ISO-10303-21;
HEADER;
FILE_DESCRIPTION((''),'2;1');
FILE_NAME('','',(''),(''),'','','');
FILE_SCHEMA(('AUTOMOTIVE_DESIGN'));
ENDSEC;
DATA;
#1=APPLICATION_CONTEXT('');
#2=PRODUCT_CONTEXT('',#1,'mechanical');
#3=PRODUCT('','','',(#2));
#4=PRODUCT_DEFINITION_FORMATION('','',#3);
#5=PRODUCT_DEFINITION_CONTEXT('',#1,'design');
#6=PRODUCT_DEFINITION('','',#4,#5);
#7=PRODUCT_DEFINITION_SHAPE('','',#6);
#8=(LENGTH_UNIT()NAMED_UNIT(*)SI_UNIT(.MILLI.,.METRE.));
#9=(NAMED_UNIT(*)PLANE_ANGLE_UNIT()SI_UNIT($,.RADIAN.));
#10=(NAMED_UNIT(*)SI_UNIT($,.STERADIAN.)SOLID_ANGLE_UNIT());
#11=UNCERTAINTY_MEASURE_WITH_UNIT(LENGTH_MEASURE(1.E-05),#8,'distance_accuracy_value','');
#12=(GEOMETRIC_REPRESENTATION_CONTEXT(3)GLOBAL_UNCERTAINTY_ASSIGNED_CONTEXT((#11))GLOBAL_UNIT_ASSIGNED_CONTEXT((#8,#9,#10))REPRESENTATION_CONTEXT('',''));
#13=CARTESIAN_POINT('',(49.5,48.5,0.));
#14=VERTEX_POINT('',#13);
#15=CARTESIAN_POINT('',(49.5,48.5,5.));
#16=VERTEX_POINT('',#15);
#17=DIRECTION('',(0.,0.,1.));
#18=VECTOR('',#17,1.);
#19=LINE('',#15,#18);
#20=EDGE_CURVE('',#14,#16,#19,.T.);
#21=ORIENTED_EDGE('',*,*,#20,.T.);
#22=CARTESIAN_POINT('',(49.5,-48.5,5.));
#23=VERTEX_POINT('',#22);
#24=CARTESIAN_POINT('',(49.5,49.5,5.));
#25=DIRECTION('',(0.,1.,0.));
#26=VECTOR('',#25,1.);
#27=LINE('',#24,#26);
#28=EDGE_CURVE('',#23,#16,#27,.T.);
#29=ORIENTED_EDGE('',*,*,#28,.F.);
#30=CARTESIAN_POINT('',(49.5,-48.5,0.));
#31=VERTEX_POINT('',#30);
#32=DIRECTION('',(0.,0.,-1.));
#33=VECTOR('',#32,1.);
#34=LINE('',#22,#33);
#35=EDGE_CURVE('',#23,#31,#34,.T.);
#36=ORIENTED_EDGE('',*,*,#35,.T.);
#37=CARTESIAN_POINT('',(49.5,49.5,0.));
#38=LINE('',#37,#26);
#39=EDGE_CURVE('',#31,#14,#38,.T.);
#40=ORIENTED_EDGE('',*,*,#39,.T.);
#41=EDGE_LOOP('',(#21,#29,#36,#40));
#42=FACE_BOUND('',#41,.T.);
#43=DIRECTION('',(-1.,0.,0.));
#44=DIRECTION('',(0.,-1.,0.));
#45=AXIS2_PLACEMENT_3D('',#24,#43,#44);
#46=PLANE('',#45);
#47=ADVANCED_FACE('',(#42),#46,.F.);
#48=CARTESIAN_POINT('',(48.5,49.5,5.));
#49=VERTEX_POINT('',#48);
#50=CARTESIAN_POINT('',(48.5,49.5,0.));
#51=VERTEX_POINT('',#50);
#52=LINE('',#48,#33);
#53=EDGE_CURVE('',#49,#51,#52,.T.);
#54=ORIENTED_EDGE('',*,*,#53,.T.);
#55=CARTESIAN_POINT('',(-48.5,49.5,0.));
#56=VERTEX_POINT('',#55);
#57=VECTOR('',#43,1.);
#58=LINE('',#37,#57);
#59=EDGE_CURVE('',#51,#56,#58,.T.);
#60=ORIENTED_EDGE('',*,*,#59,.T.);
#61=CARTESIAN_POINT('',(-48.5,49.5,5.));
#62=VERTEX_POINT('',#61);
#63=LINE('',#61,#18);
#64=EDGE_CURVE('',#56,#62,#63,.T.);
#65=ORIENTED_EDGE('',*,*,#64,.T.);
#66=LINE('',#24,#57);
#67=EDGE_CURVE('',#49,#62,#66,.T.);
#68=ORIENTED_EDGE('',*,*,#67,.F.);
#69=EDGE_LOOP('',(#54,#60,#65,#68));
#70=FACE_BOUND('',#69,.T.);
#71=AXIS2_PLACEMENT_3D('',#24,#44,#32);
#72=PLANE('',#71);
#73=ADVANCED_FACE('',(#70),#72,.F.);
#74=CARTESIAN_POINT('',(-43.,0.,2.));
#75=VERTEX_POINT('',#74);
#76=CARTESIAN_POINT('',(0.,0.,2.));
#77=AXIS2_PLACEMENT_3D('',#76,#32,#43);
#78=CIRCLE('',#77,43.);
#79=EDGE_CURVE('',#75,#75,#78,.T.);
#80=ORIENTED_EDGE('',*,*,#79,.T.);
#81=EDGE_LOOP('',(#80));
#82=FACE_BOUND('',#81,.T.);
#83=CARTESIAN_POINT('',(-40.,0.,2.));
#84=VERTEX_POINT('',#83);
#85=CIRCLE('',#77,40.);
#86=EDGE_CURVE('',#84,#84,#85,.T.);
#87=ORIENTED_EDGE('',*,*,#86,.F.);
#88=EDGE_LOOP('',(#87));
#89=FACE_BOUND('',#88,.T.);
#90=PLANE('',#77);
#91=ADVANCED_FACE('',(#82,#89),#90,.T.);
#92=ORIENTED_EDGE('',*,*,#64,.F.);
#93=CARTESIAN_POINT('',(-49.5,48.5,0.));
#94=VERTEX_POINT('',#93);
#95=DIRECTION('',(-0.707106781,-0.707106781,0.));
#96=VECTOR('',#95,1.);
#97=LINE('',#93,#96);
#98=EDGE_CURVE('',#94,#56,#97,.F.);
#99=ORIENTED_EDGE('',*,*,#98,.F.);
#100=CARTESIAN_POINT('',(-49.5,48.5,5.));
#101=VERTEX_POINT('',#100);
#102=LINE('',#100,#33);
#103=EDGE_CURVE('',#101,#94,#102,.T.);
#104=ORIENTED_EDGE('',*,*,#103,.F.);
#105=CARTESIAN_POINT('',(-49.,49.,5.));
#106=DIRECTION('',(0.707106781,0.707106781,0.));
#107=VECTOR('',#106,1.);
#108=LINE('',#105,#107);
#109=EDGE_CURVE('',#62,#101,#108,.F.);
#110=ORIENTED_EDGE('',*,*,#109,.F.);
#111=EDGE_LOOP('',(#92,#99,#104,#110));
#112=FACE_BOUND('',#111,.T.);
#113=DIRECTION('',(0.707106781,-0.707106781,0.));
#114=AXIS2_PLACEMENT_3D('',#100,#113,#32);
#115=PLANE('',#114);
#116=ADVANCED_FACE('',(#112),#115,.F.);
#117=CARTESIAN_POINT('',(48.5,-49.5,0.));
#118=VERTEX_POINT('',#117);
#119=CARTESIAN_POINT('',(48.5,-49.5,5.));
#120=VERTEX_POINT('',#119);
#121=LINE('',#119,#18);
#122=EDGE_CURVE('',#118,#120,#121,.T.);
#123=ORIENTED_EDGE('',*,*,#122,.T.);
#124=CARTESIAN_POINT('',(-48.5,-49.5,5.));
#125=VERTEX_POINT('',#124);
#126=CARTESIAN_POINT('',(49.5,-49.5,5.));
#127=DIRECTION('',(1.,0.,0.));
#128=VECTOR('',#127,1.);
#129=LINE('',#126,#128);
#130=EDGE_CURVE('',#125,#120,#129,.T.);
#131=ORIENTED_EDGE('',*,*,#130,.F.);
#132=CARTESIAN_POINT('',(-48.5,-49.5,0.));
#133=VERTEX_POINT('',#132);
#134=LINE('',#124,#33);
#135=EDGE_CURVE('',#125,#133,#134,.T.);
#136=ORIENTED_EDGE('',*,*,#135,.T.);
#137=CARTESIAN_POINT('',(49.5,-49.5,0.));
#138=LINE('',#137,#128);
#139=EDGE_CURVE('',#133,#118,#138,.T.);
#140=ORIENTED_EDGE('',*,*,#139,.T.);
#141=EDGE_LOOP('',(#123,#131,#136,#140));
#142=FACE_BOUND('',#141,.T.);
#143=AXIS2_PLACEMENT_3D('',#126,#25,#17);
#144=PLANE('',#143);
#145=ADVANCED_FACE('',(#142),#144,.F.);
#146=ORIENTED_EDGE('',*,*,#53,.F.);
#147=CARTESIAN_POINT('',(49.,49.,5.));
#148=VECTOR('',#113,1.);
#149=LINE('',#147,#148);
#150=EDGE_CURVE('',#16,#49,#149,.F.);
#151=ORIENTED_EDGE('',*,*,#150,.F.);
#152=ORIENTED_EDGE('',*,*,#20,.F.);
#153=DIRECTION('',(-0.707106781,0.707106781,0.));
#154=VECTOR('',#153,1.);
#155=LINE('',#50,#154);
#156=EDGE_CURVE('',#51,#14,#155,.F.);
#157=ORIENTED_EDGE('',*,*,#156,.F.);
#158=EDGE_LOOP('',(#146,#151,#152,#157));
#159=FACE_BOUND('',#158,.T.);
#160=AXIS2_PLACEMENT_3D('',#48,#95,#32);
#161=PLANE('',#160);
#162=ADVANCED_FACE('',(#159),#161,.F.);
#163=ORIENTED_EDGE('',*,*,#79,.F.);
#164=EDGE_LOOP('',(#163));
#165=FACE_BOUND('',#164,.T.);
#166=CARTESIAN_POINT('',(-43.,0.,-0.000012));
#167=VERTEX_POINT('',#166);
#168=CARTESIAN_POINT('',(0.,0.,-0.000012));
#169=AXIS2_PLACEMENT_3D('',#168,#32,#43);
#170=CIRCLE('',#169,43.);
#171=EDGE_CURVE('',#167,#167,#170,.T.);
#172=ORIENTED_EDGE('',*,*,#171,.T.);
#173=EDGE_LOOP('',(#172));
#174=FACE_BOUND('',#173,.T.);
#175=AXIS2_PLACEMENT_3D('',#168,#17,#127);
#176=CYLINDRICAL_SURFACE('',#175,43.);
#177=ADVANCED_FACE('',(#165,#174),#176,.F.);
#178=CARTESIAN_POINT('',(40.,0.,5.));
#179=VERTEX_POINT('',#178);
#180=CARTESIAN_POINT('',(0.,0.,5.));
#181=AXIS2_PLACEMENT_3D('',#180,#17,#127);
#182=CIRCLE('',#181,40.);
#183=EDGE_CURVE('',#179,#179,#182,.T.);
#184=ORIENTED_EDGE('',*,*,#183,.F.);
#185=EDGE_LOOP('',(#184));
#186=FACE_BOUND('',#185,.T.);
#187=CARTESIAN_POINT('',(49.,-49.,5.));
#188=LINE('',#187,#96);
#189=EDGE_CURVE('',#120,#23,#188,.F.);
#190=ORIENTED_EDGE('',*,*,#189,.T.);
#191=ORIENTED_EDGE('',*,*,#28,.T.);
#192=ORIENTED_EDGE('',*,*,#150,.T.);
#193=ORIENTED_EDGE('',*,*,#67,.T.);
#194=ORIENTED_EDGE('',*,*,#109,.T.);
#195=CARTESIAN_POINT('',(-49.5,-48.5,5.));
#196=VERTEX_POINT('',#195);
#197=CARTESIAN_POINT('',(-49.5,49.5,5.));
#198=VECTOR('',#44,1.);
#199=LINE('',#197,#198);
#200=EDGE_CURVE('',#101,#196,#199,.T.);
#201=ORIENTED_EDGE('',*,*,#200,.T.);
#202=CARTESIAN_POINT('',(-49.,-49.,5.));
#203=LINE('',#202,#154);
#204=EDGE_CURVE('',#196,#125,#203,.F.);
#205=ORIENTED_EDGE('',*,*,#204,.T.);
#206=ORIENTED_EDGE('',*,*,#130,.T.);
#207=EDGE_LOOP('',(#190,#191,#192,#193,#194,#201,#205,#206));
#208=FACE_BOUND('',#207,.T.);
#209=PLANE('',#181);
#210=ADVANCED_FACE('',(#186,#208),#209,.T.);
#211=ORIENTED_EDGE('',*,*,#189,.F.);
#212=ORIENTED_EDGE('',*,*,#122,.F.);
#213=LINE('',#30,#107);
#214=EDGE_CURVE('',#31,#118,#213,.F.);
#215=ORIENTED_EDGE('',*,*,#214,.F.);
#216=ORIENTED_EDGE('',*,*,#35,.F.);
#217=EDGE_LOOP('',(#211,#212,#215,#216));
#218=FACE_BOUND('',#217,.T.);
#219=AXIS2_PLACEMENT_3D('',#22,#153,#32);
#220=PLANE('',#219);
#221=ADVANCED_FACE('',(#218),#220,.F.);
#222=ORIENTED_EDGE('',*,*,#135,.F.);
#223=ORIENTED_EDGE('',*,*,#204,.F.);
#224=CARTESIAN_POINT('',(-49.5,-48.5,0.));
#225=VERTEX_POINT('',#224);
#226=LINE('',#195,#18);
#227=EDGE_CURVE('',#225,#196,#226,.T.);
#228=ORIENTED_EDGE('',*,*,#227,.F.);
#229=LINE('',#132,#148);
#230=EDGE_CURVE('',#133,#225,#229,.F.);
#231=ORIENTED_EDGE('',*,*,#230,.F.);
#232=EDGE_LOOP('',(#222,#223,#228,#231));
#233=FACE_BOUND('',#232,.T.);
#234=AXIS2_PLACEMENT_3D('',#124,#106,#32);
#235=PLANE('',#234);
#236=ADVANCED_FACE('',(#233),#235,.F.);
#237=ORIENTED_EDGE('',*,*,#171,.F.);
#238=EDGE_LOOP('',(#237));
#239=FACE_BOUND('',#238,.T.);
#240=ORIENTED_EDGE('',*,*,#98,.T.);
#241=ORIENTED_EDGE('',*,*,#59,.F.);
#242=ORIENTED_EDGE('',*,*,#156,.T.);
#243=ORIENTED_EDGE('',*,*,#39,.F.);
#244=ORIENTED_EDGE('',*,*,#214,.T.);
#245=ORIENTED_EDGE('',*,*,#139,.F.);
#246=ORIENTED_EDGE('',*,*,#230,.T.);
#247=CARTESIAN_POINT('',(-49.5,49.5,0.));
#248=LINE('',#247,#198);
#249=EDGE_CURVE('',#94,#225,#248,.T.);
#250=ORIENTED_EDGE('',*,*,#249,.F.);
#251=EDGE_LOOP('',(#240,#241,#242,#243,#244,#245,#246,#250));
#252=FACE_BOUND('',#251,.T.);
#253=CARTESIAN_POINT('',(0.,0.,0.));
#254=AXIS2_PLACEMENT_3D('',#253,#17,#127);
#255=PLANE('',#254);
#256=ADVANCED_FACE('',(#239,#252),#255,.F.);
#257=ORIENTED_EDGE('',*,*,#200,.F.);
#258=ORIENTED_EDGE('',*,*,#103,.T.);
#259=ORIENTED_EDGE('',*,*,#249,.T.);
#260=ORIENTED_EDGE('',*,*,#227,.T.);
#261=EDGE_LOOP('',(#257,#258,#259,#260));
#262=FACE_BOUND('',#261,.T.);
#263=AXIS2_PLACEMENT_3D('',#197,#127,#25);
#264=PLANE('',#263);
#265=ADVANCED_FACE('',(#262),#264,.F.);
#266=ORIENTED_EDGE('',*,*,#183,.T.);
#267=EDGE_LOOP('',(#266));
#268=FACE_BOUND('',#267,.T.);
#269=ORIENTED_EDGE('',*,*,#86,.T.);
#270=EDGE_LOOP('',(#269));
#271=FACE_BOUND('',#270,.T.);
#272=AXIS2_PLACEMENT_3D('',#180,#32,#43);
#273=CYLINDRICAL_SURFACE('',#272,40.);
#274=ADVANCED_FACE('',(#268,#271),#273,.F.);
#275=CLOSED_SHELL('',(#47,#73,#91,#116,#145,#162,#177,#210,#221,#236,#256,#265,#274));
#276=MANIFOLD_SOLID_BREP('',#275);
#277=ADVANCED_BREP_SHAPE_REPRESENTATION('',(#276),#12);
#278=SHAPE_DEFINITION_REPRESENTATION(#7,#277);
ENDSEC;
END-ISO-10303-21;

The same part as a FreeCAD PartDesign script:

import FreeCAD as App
import Part
import Sketcher


def edges_at(feature, points):
    """Names of the edges that pass closest to the given points."""
    edges = feature.Shape.Edges
    near = lambda p: min(range(len(edges)), key=lambda i: edges[i].distToShape(Part.Vertex(*p))[0])
    return sorted({f"Edge{near(p) + 1}" for p in points})


def add_polygon(sketch, points):
    """Adds a closed chain of lines whose ends are joined by coincident constraints."""
    first, n = sketch.GeometryCount, len(points)
    for a, b in zip(points, points[1:] + points[:1]):
        sketch.addGeometry(Part.LineSegment(App.Vector(*a, 0), App.Vector(*b, 0)), False)
    for i in range(n):
        sketch.addConstraint(Sketcher.Constraint("Coincident", first + i, 2, first + (i + 1) % n, 1))

doc = App.newDocument("Part")
body = doc.addObject("PartDesign::Body", "Body")

# Sketch on XY plane
sketch1 = body.newObject("Sketcher::SketchObject", "Sketch")
sketch1.AttachmentSupport = (doc.getObject("XY_Plane"), [""])
sketch1.MapMode = "FlatFace"
add_polygon(sketch1, [(-50, -50), (50, -50), (50, 50), (-50, 50)])  # lines 0-3
sketch1.addGeometry(Part.Circle(App.Vector(0, 0, 0), App.Vector(0, 0, 1), 40), False)  # 4
sketch1.addConstraint([
    Sketcher.Constraint("Horizontal", 0),
    Sketcher.Constraint("Vertical", 1),
    Sketcher.Constraint("Horizontal", 2),
    Sketcher.Constraint("Vertical", 3),
    Sketcher.Constraint("Coincident", 4, 3, -1, 1),
    Sketcher.Constraint("Symmetric", 0, 2, 2, 2, -1, 1),
    Sketcher.Constraint("Equal", 2, 1),
    Sketcher.Constraint("Diameter", 4, 80.0),
    Sketcher.Constraint("DistanceX", 0, 1, 0, 2, 99.0),
])
pad1 = body.newObject("PartDesign::Pad", "Pad")
pad1.Profile = sketch1
pad1.Length = 5

# Sketch on XY plane
sketch2 = body.newObject("Sketcher::SketchObject", "Sketch001")
sketch2.AttachmentSupport = (doc.getObject("XY_Plane"), [""])
sketch2.MapMode = "FlatFace"
sketch2.addGeometry(Part.Circle(App.Vector(0, 0, 0), App.Vector(0, 0, 1), 43), False)
sketch2.addConstraint([
    Sketcher.Constraint("Coincident", 0, 3, -1, 1),
    Sketcher.Constraint("Diameter", 0, 86.0),
])
pocket1 = body.newObject("PartDesign::Pocket", "Pocket")
pocket1.Profile = sketch2
pocket1.Type = "TwoLengths"
pocket1.Length = 71.181906
pocket1.Length2 = 2
doc.recompute()

chamfer = body.newObject("PartDesign::Chamfer", "Chamfer")
chamfer.Base = (pocket1, edges_at(pocket1, [
    (-49.5, -49.5, 2.5),
    (-49.5, 49.5, 2.5),
    (49.5, 49.5, 2.5),
    (49.5, -49.5, 2.5),
]))
chamfer.Size = 1

doc.recompute()
